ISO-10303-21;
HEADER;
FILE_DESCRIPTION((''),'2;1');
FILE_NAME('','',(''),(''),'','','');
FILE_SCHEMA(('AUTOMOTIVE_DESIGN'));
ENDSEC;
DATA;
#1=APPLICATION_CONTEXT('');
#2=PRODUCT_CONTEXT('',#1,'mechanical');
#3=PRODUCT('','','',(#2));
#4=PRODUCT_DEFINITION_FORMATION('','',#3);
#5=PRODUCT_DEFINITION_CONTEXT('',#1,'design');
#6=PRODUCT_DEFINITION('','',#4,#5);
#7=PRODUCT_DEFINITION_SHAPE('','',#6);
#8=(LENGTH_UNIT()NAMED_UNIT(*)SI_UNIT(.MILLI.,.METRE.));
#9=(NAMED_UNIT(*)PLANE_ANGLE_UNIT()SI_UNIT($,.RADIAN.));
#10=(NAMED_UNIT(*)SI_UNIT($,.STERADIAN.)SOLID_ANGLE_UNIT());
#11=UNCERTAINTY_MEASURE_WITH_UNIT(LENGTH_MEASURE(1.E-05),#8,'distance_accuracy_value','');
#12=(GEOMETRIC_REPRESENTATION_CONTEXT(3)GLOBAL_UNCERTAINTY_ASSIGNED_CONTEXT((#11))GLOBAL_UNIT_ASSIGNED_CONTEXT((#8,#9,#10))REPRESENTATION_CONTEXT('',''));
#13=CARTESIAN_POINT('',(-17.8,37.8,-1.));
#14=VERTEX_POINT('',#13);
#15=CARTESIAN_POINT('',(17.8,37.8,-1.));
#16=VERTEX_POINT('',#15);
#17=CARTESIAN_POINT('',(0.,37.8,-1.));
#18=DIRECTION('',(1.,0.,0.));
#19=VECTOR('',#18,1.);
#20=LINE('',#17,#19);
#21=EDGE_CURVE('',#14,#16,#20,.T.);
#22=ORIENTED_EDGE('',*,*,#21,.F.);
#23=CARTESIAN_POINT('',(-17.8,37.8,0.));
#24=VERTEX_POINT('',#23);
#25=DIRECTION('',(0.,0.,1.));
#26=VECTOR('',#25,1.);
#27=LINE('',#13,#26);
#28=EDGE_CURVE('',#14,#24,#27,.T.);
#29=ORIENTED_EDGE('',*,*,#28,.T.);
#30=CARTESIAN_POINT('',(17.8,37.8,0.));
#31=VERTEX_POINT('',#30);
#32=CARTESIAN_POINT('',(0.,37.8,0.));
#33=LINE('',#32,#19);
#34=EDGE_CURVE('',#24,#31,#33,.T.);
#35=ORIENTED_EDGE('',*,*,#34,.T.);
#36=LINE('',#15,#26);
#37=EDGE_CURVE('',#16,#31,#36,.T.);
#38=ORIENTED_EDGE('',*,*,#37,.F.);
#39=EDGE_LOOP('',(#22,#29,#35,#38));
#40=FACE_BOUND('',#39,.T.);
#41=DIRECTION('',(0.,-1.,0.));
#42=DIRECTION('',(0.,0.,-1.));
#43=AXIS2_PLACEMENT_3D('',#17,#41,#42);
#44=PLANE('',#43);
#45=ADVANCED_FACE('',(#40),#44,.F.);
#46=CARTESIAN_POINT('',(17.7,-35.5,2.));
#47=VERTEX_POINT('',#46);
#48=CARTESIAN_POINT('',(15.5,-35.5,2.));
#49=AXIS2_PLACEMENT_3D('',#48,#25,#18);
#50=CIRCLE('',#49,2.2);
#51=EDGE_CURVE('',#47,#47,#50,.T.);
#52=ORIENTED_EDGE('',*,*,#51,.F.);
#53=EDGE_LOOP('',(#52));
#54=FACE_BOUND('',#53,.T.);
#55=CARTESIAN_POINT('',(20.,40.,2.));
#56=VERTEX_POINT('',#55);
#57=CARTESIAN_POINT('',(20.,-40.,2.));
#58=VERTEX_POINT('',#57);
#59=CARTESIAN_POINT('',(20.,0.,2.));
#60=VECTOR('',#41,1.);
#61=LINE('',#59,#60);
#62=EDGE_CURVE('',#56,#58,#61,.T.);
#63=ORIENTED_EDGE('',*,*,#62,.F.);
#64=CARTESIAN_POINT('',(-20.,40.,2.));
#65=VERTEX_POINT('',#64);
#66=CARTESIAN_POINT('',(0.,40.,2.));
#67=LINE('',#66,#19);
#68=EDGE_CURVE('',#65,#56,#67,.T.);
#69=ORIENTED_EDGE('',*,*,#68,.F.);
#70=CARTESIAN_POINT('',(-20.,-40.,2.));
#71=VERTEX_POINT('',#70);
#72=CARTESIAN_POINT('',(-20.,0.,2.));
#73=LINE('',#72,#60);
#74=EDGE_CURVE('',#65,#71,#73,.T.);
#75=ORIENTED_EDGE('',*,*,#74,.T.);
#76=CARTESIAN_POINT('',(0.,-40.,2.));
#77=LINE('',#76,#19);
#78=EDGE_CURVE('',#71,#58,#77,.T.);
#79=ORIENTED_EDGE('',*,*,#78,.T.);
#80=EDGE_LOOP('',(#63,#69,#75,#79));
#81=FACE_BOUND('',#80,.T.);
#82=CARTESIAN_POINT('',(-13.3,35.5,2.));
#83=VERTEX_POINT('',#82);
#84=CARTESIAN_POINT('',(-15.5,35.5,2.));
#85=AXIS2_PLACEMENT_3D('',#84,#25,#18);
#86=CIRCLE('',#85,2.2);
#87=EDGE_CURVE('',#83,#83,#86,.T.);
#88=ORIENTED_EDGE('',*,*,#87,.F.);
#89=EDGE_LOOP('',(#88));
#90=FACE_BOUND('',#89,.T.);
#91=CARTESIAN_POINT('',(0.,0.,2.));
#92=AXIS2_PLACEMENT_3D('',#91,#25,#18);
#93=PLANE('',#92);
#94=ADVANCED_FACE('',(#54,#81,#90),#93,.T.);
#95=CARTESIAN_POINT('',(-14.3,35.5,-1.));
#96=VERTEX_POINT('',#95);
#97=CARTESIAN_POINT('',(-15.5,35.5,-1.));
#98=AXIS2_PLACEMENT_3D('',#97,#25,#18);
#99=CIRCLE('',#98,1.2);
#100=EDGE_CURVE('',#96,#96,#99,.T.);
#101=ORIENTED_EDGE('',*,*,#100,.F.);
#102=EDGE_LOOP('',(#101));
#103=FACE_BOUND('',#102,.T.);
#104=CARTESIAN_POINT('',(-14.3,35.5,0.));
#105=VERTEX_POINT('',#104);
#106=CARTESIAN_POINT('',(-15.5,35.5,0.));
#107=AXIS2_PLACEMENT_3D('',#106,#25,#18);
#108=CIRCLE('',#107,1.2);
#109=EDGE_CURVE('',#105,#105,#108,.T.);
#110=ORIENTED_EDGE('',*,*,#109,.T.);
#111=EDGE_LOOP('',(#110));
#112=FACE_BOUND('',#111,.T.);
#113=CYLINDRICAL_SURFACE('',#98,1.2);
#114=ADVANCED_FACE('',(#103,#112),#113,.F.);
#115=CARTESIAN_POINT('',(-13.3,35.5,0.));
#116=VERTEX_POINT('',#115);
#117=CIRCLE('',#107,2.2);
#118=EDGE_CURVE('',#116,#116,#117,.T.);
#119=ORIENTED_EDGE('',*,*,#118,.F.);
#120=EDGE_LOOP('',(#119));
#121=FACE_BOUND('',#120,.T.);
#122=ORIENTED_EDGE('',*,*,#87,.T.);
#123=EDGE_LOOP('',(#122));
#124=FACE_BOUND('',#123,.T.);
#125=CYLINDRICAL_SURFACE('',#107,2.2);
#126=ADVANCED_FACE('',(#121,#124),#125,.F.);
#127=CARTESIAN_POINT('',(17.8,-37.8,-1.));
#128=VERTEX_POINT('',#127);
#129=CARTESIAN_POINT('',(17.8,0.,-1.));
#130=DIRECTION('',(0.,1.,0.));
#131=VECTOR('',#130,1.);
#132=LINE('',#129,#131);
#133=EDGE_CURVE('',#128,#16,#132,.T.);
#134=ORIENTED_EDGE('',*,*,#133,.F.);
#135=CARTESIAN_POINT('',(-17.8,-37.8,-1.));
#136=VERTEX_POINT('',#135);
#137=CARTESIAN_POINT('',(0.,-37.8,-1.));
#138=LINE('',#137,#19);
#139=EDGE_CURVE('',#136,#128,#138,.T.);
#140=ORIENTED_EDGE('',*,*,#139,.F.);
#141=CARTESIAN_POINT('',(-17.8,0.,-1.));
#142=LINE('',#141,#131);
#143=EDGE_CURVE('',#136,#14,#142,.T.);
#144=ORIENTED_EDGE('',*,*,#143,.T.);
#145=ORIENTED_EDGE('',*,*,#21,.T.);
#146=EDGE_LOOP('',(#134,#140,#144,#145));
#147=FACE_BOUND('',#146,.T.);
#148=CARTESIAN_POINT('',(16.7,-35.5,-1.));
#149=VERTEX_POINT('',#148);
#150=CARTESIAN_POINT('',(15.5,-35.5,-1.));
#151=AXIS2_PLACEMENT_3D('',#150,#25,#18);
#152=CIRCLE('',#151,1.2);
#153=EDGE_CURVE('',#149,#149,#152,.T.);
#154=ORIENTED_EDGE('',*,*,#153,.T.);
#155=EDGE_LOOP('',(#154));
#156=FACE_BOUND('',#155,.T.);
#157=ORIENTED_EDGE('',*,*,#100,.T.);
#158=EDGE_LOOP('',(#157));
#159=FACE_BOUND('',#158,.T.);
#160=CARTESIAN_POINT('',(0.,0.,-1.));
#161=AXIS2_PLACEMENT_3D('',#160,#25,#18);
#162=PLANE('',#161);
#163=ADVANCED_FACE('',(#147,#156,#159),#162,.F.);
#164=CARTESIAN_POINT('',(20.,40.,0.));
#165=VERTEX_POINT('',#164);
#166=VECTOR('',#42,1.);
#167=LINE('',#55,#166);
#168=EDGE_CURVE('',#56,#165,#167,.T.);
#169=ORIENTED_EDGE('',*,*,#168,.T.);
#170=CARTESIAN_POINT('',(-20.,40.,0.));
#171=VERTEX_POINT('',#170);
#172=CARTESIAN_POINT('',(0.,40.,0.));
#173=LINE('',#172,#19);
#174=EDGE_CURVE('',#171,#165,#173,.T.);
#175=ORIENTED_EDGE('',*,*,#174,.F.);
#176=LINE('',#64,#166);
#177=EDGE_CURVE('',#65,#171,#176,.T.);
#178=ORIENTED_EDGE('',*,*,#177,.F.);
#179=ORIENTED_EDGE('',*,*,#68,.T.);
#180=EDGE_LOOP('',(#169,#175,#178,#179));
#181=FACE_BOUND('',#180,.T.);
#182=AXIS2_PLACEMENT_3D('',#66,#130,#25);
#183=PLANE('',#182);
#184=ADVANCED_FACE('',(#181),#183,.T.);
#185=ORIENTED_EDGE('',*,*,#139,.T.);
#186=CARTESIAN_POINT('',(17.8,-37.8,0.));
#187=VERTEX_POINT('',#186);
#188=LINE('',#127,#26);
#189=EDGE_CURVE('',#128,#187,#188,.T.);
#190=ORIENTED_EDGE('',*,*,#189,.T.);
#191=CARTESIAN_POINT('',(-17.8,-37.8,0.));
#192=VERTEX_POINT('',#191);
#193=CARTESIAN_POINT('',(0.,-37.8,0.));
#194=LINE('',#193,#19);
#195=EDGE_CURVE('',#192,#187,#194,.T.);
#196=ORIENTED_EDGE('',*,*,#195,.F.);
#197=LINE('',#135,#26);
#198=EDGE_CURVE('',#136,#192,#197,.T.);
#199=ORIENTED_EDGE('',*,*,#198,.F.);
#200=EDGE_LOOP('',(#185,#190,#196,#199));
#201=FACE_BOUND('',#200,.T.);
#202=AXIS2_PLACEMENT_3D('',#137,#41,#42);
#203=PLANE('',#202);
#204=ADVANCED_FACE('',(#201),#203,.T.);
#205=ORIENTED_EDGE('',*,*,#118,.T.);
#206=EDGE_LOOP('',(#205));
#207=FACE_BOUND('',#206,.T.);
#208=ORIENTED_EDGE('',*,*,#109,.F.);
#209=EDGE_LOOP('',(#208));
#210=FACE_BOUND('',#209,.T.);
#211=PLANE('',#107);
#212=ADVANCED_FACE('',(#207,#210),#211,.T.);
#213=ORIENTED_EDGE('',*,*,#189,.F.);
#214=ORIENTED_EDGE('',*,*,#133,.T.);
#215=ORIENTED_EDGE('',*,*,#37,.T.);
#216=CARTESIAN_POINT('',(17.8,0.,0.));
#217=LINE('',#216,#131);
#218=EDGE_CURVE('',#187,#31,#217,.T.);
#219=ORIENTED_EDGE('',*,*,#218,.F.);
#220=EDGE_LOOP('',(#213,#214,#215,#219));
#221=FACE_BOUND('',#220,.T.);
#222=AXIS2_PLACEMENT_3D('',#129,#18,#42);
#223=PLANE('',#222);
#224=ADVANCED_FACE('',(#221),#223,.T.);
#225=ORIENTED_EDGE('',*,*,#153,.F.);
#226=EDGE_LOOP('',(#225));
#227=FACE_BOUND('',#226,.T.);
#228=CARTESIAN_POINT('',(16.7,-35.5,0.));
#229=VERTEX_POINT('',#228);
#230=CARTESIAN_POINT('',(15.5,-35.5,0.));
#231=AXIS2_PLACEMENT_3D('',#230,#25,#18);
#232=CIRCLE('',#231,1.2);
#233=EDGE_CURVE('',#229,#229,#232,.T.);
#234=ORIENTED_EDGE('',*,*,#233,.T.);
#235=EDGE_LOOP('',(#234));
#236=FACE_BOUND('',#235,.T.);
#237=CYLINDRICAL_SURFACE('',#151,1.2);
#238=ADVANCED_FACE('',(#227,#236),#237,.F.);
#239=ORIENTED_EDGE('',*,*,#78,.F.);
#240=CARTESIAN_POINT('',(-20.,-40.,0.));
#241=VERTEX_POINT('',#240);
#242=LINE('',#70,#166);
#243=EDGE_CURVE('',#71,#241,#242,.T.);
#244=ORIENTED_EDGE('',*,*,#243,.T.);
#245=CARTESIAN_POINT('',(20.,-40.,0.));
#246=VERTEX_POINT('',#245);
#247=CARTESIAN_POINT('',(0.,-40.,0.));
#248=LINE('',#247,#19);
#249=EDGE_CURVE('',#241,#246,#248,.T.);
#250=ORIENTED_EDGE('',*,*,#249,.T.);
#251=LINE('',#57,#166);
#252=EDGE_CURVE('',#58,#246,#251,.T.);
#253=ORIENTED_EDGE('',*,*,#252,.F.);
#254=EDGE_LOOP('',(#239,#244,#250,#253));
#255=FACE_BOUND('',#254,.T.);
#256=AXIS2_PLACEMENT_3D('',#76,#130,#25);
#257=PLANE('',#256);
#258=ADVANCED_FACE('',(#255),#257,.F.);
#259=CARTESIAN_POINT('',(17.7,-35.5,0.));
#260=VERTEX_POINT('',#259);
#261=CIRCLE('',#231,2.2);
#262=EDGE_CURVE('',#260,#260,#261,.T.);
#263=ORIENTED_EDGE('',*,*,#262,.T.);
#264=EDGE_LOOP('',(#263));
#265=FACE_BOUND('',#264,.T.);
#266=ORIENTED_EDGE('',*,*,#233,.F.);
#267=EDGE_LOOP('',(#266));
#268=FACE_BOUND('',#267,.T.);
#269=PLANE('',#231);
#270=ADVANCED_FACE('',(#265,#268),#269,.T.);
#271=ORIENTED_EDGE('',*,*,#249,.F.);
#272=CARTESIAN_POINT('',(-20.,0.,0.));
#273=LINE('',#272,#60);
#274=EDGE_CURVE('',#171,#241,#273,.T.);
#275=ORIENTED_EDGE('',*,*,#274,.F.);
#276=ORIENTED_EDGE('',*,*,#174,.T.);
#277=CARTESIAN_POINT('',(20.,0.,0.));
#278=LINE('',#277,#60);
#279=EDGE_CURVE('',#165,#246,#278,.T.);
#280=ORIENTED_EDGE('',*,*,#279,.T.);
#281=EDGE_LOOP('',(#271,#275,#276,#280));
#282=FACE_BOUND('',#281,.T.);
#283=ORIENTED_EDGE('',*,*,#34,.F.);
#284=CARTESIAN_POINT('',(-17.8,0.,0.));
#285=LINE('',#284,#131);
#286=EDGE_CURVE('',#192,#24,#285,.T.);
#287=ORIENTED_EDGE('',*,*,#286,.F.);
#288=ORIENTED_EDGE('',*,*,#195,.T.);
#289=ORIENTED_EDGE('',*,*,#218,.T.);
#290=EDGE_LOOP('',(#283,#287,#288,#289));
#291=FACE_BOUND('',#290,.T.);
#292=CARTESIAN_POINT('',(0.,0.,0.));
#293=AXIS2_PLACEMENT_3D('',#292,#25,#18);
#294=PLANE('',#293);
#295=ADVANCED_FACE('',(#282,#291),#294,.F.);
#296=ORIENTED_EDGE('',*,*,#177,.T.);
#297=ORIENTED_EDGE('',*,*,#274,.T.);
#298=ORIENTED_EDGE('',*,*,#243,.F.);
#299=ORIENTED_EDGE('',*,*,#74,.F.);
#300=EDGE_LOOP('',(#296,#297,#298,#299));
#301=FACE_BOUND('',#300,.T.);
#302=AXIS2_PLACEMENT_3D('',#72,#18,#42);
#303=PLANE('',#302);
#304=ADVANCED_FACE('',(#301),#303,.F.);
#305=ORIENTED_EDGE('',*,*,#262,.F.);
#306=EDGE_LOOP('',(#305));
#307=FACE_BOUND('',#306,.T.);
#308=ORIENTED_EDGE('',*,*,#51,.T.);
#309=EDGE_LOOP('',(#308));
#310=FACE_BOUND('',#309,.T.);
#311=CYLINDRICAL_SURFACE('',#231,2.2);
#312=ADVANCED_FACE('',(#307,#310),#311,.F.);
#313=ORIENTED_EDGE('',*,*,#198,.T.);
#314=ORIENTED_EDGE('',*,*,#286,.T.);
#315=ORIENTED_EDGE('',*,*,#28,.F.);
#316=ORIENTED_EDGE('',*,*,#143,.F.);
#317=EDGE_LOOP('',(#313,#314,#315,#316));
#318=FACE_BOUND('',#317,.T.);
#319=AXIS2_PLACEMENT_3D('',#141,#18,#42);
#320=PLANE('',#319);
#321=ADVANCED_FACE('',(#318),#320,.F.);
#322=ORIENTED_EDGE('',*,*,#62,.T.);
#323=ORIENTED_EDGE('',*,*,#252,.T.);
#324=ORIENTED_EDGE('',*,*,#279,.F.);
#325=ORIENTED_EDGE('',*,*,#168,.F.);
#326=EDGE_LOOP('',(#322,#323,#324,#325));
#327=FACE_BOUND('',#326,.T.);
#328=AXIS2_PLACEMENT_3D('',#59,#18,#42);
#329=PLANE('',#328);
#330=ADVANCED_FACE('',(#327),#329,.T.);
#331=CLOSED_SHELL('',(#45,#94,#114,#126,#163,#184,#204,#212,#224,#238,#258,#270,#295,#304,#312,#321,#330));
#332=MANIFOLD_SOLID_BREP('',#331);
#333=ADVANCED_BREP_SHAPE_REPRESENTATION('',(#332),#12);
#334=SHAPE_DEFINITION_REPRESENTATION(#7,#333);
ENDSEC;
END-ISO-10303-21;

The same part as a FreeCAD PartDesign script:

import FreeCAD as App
import Part
import Sketcher
from FreeCAD import Vector


def add_polygon(sketch, points):
    """Adds a closed chain of lines whose ends are joined by coincident constraints."""
    first, n = sketch.GeometryCount, len(points)
    for a, b in zip(points, points[1:] + points[:1]):
        sketch.addGeometry(Part.LineSegment(App.Vector(*a, 0), App.Vector(*b, 0)), False)
    for i in range(n):
        sketch.addConstraint(Sketcher.Constraint("Coincident", first + i, 2, first + (i + 1) % n, 1))

doc = App.newDocument("Part")
body = doc.addObject("PartDesign::Body", "Body")

# Sketch on XY plane
sketch1 = body.newObject("Sketcher::SketchObject", "Sketch")
sketch1.AttachmentSupport = (doc.getObject("XY_Plane"), [""])
sketch1.MapMode = "FlatFace"
add_polygon(sketch1, [(-20, 40), (-20, -40), (20, -40), (20, 40)])  # lines 0-3
sketch1.addConstraint([
    Sketcher.Constraint("Vertical", 0),
    Sketcher.Constraint("Horizontal", 1),
    Sketcher.Constraint("Vertical", 2),
    Sketcher.Constraint("Horizontal", 3),
    Sketcher.Constraint("Symmetric", 0, 2, 2, 2, -1, 1),
    Sketcher.Constraint("DistanceX", 1, 1, 1, 2, 40.0),
    Sketcher.Constraint("DistanceY", 0, 2, 0, 1, 80.0),
])
pad1 = body.newObject("PartDesign::Pad", "Pad")
pad1.Profile = sketch1
pad1.Length = 2

# Sketch on XY plane
sketch2 = body.newObject("Sketcher::SketchObject", "Sketch001")
sketch2.AttachmentSupport = (doc.getObject("XY_Plane"), [""])
sketch2.MapMode = "FlatFace"
add_polygon(sketch2, [(-17.8, 37.8), (-17.8, -37.8), (17.8, -37.8), (17.8, 37.8)])  # lines 0-3
sketch2.addConstraint([
    Sketcher.Constraint("Vertical", 0),
    Sketcher.Constraint("Horizontal", 1),
    Sketcher.Constraint("Vertical", 2),
    Sketcher.Constraint("Horizontal", 3),
    Sketcher.Constraint("Symmetric", 0, 2, 2, 2, -1, 1),
    Sketcher.Constraint("DistanceX", 1, 1, 1, 2, 35.6),
    Sketcher.Constraint("DistanceY", 0, 2, 0, 1, 75.6),
])
pad2 = body.newObject("PartDesign::Pad", "Pad001")
pad2.Profile = sketch2
pad2.Length = 1
pad2.Reversed = True

# Sketch on XY plane
sketch3 = body.newObject("Sketcher::SketchObject", "Sketch002")
sketch3.AttachmentSupport = (doc.getObject("XY_Plane"), [""])
sketch3.MapMode = "FlatFace"
sketch3.AttachmentOffset = App.Placement(Vector(0, 0, 2), App.Rotation())
sketch3.addGeometry([
    Part.Circle(Vector(-15.5, 35.5, 0), Vector(0, 0, 1), 1.2),
    Part.Circle(Vector(15.5, -35.5, 0), Vector(0, 0, 1), 1.2),
], False)
sketch3.addConstraint([
    Sketcher.Constraint("Equal", 0, 1),
    Sketcher.Constraint("Symmetric", 0, 3, 1, 3, -1, 1),
    Sketcher.Constraint("Diameter", 0, 2.4),
    Sketcher.Constraint("DistanceX", 0, 3, 1, 3, 31.0),
    Sketcher.Constraint("DistanceY", 1, 3, 0, 3, 71.0),
])
pocket1 = body.newObject("PartDesign::Pocket", "Pocket")
pocket1.Profile = sketch3
pocket1.Type = "ThroughAll"

# Sketch on XY plane
sketch4 = body.newObject("Sketcher::SketchObject", "Sketch003")
sketch4.AttachmentSupport = (doc.getObject("XY_Plane"), [""])
sketch4.MapMode = "FlatFace"
sketch4.AttachmentOffset = App.Placement(Vector(0, 0, 2), App.Rotation())
sketch4.addGeometry([
    Part.Circle(Vector(-15.5, 35.5, 0), Vector(0, 0, 1), 2.2),
    Part.Circle(Vector(-15.5, 35.5, 0), Vector(0, 0, 1), 1.2),
    Part.Circle(Vector(15.5, -35.5, 0), Vector(0, 0, 1), 2.2),
    Part.Circle(Vector(15.5, -35.5, 0), Vector(0, 0, 1), 1.2),
], False)
sketch4.addConstraint([
    Sketcher.Constraint("Coincident", 1, 3, 0, 3),
    Sketcher.Constraint("Coincident", 3, 3, 2, 3),
    Sketcher.Constraint("Equal", 0, 2),
    Sketcher.Constraint("Equal", 1, 3),
    Sketcher.Constraint("Symmetric", 0, 3, 2, 3, -1, 1),
    Sketcher.Constraint("Diameter", 0, 4.4),
    Sketcher.Constraint("Diameter", 1, 2.4),
    Sketcher.Constraint("DistanceX", 0, 3, 2, 3, 31.0),
    Sketcher.Constraint("DistanceY", 2, 3, 0, 3, 71.0),
])
pocket2 = body.newObject("PartDesign::Pocket", "Pocket001")
pocket2.Profile = sketch4
pocket2.Length = 2

doc.recompute()
